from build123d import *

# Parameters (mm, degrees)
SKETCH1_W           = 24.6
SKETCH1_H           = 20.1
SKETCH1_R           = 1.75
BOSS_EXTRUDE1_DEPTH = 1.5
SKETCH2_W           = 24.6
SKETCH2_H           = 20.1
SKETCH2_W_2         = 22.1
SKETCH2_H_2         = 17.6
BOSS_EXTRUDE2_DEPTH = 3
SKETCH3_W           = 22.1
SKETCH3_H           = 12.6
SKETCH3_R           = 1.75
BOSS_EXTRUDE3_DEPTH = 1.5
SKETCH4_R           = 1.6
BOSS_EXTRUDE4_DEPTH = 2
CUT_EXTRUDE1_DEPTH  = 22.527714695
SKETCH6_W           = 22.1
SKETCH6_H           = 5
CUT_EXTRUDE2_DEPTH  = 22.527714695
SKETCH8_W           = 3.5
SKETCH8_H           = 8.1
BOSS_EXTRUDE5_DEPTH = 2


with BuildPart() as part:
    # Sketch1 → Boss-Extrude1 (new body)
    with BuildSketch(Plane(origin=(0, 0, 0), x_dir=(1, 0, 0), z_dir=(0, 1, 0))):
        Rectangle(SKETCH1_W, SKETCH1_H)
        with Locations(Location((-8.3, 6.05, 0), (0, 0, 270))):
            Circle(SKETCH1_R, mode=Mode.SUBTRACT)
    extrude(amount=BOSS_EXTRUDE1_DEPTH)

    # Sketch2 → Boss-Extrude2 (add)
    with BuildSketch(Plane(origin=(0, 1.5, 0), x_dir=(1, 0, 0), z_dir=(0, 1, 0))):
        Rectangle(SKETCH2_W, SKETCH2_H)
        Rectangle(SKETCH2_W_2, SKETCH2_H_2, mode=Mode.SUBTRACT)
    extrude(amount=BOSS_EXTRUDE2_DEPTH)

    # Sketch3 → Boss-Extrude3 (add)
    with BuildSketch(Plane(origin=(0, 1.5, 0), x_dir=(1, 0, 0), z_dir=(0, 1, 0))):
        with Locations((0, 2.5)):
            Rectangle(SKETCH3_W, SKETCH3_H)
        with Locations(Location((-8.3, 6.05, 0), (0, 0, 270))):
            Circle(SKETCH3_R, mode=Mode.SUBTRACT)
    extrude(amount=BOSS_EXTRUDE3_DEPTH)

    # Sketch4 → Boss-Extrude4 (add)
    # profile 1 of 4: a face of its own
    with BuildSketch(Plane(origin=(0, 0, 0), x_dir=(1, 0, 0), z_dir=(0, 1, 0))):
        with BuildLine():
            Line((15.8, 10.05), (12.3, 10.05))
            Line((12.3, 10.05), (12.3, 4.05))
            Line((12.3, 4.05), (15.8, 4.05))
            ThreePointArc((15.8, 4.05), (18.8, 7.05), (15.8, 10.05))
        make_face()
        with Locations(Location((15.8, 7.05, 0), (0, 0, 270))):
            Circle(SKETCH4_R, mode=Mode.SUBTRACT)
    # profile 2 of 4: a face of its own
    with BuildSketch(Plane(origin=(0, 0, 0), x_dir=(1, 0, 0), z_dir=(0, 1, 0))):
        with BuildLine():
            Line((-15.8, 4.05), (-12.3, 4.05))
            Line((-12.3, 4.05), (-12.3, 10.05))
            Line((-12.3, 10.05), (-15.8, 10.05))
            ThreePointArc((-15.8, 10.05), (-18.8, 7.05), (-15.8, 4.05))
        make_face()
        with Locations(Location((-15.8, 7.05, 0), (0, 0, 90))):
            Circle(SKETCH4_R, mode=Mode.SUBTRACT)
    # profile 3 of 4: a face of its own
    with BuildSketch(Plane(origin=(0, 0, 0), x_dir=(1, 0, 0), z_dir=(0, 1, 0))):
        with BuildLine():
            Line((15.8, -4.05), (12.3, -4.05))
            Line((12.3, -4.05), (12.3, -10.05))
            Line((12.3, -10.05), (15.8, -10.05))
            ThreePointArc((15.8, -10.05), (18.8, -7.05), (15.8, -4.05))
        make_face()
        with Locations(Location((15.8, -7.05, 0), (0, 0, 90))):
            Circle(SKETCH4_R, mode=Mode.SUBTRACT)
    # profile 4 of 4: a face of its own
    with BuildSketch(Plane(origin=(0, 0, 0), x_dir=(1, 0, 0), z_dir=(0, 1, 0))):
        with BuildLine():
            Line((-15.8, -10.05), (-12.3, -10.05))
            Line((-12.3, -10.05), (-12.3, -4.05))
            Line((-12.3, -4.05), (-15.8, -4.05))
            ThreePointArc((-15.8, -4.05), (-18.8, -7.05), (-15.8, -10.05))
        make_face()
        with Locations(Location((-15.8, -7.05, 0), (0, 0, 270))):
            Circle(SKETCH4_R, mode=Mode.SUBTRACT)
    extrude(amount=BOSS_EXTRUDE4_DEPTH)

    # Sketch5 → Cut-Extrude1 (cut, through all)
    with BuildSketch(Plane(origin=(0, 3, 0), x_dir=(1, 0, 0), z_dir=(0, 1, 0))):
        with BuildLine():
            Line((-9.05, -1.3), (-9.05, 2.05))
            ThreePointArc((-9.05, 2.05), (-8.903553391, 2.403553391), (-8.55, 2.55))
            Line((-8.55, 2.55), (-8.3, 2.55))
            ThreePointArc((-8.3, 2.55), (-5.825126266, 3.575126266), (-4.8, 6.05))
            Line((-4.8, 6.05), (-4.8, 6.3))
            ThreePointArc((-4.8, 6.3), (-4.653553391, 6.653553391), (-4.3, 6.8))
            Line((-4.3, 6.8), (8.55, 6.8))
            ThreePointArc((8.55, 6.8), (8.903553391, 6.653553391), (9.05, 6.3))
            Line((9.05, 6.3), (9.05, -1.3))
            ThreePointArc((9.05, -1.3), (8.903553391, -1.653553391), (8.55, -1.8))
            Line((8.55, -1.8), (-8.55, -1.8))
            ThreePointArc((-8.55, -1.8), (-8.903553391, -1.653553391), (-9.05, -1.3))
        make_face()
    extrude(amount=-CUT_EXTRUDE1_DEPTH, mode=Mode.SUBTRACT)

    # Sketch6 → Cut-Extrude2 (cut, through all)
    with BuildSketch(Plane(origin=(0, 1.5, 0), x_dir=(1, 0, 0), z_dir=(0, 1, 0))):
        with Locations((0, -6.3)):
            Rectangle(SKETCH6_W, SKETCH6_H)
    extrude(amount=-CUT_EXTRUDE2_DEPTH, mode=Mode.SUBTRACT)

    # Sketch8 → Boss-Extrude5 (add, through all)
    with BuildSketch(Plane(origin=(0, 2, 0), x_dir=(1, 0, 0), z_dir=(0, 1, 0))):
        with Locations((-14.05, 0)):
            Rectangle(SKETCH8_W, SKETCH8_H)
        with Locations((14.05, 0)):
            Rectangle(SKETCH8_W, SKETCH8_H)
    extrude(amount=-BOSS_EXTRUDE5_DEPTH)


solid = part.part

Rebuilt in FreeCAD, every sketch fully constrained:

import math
import FreeCAD as App
import Part
import Sketcher
from FreeCAD import Vector

doc = App.newDocument("Part")
body = doc.addObject("PartDesign::Body", "Body")

# Sketch on XZ plane
sketch1 = body.newObject("Sketcher::SketchObject", "Sketch")
sketch1.AttachmentSupport = (doc.getObject("XZ_Plane"), [""])
sketch1.MapMode = "FlatFace"
sketch1.addGeometry([
    Part.LineSegment(Vector(-12.3, -10.1, 0), Vector(-12.3, 10.1, 0)),  # 0
    Part.LineSegment(Vector(-12.3, 10.1, 0), Vector(12.3, 10.1, 0)),  # 1
    Part.LineSegment(Vector(12.3, 10.1, 0), Vector(12.3, -10.1, 0)),  # 2
    Part.LineSegment(Vector(12.3, -10.1, 0), Vector(-12.3, -10.1, 0)),  # 3
    Part.Circle(Vector(-8.3, -6, 0), Vector(0, 0, 1), 1.8),  # 4
], False)
sketch1.addConstraint([
    Sketcher.Constraint("Coincident", 0, 2, 1, 1),
    Sketcher.Constraint("Coincident", 1, 2, 2, 1),
    Sketcher.Constraint("Coincident", 2, 2, 3, 1),
    Sketcher.Constraint("Coincident", 3, 2, 0, 1),
    Sketcher.Constraint("Vertical", 0),
    Sketcher.Constraint("Horizontal", 1),
    Sketcher.Constraint("Vertical", 2),
    Sketcher.Constraint("Horizontal", 3),
    Sketcher.Constraint("Symmetric", 0, 2, 2, 2, -1, 1),
    Sketcher.Constraint("Diameter", 4, 3.5),
    Sketcher.Constraint("DistanceX", 1, 1, 1, 2, 24.6),
    Sketcher.Constraint("DistanceY", 0, 1, 0, 2, 20.1),
    Sketcher.Constraint("DistanceX", 0, 2, 4, 3, 4.0),
    Sketcher.Constraint("DistanceY", 2, 2, 4, 3, 4.0),
])
pad1 = body.newObject("PartDesign::Pad", "Pad")
pad1.Profile = sketch1
pad1.Length = 1.5
pad1.Reversed = True

# Sketch on XZ plane
sketch2 = body.newObject("Sketcher::SketchObject", "Sketch001")
sketch2.AttachmentSupport = (doc.getObject("XZ_Plane"), [""])
sketch2.MapMode = "FlatFace"
sketch2.AttachmentOffset = App.Placement(Vector(0, 0, -1.5), App.Rotation())
sketch2.addGeometry([
    Part.LineSegment(Vector(-12, -10, 0), Vector(-12, 10, 0)),  # 0
    Part.LineSegment(Vector(-12, 10, 0), Vector(12, 10, 0)),  # 1
    Part.LineSegment(Vector(12, 10, 0), Vector(12, -10, 0)),  # 2
    Part.LineSegment(Vector(12, -10, 0), Vector(-12, -10, 0)),  # 3
    Part.LineSegment(Vector(11, 9, 0), Vector(-11, 9, 0)),  # 4
    Part.LineSegment(Vector(-11, 9, 0), Vector(-11, -9, 0)),  # 5
    Part.LineSegment(Vector(-11, -9, 0), Vector(11, -9, 0)),  # 6
    Part.LineSegment(Vector(11, -9, 0), Vector(11, 9, 0)),  # 7
], False)
sketch2.addConstraint([
    Sketcher.Constraint("Coincident", 0, 2, 1, 1),
    Sketcher.Constraint("Coincident", 1, 2, 2, 1),
    Sketcher.Constraint("Coincident", 2, 2, 3, 1),
    Sketcher.Constraint("Coincident", 3, 2, 0, 1),
    Sketcher.Constraint("Coincident", 4, 2, 5, 1),
    Sketcher.Constraint("Coincident", 5, 2, 6, 1),
    Sketcher.Constraint("Coincident", 6, 2, 7, 1),
    Sketcher.Constraint("Coincident", 7, 2, 4, 1),
    Sketcher.Constraint("Vertical", 0),
    Sketcher.Constraint("Horizontal", 1),
    Sketcher.Constraint("Vertical", 2),
    Sketcher.Constraint("Horizontal", 3),
    Sketcher.Constraint("Horizontal", 4),
    Sketcher.Constraint("Vertical", 5),
    Sketcher.Constraint("Horizontal", 6),
    Sketcher.Constraint("Vertical", 7),
    Sketcher.Constraint("Symmetric", 0, 2, 2, 2, -1, 1),
    Sketcher.Constraint("Symmetric", 4, 2, 6, 2, -1, 1),
    Sketcher.Constraint("DistanceX", 1, 1, 1, 2, 24.6),
    Sketcher.Constraint("DistanceX", 4, 2, 4, 1, 22.1),
    Sketcher.Constraint("DistanceY", 0, 1, 0, 2, 20.1),
    Sketcher.Constraint("DistanceY", 5, 2, 5, 1, 17.6),
])
pad2 = body.newObject("PartDesign::Pad", "Pad001")
pad2.Profile = sketch2
pad2.Length = 3
pad2.Reversed = True

# Sketch on XZ plane
sketch3 = body.newObject("Sketcher::SketchObject", "Sketch002")
sketch3.AttachmentSupport = (doc.getObject("XZ_Plane"), [""])
sketch3.MapMode = "FlatFace"
sketch3.AttachmentOffset = App.Placement(Vector(0, 0, -1.5), App.Rotation())
sketch3.addGeometry([
    Part.LineSegment(Vector(-11.1, -8.8, 0), Vector(-11.1, 3.8, 0)),  # 0
    Part.LineSegment(Vector(-11.1, 3.8, 0), Vector(11.1, 3.8, 0)),  # 1
    Part.LineSegment(Vector(11.1, 3.8, 0), Vector(11.1, -8.8, 0)),  # 2
    Part.LineSegment(Vector(11.1, -8.8, 0), Vector(-11.1, -8.8, 0)),  # 3
    Part.Circle(Vector(-8.3, -6, 0), Vector(0, 0, 1), 1.8),  # 4
], False)
sketch3.addConstraint([
    Sketcher.Constraint("Coincident", 0, 2, 1, 1),
    Sketcher.Constraint("Coincident", 1, 2, 2, 1),
    Sketcher.Constraint("Coincident", 2, 2, 3, 1),
    Sketcher.Constraint("Coincident", 3, 2, 0, 1),
    Sketcher.Constraint("Vertical", 0),
    Sketcher.Constraint("Horizontal", 1),
    Sketcher.Constraint("Vertical", 2),
    Sketcher.Constraint("Horizontal", 3),
    Sketcher.Constraint("Diameter", 4, 3.5),
    Sketcher.Constraint("DistanceX", 1, 1, 1, 2, 22.1),
    Sketcher.Constraint("DistanceY", 0, 1, 0, 2, 12.6),
    Sketcher.Constraint("DistanceX", 4, 3, -1, 1, 8.3),
    Sketcher.Constraint("DistanceY", -1, 1, 0, 2, 3.8),
    Sketcher.Constraint("DistanceY", 4, 3, -1, 1, 6.05),
    Sketcher.Constraint("DistanceX", 0, 2, -1, 1, 11.05),
])
pad3 = body.newObject("PartDesign::Pad", "Pad002")
pad3.Profile = sketch3
pad3.Length = 1.5
pad3.Reversed = True

# Sketch on XZ plane
sketch4 = body.newObject("Sketcher::SketchObject", "Sketch003")
sketch4.AttachmentSupport = (doc.getObject("XZ_Plane"), [""])
sketch4.MapMode = "FlatFace"
sketch4.addGeometry([
    Part.LineSegment(Vector(15.8, -10.1, 0), Vector(12.3, -10.1, 0)),  # 0
    Part.LineSegment(Vector(12.3, -10.1, 0), Vector(12.3, -4, 0)),  # 1
    Part.LineSegment(Vector(12.3, -4, 0), Vector(15.8, -4, 0)),  # 2
    Part.ArcOfCircle(Part.Circle(Vector(15.8, -7, 0), Vector(0, 0, 1), 3), math.radians(-90), math.radians(90)),  # 3
    Part.Circle(Vector(15.8, -7, 0), Vector(0, 0, 1), 1.6),  # 4
    Part.LineSegment(Vector(-15.8, -4, 0), Vector(-12.3, -4, 0)),  # 5
    Part.LineSegment(Vector(-12.3, -4, 0), Vector(-12.3, -10.1, 0)),  # 6
    Part.LineSegment(Vector(-12.3, -10.1, 0), Vector(-15.8, -10.1, 0)),  # 7
    Part.ArcOfCircle(Part.Circle(Vector(-15.8, -7, 0), Vector(0, 0, 1), 3), math.radians(90), math.radians(270)),  # 8
    Part.Circle(Vector(-15.8, -7, 0), Vector(0, 0, 1), 1.6),  # 9
    Part.LineSegment(Vector(15.8, 4, 0), Vector(12.3, 4, 0)),  # 10
    Part.LineSegment(Vector(12.3, 4, 0), Vector(12.3, 10.1, 0)),  # 11
    Part.LineSegment(Vector(12.3, 10.1, 0), Vector(15.8, 10.1, 0)),  # 12
    Part.ArcOfCircle(Part.Circle(Vector(15.8, 7, 0), Vector(0, 0, 1), 3), math.radians(-90), math.radians(90)),  # 13
    Part.Circle(Vector(15.8, 7, 0), Vector(0, 0, 1), 1.6),  # 14
    Part.LineSegment(Vector(-15.8, 10.1, 0), Vector(-12.3, 10.1, 0)),  # 15
    Part.LineSegment(Vector(-12.3, 10.1, 0), Vector(-12.3, 4, 0)),  # 16
    Part.LineSegment(Vector(-12.3, 4, 0), Vector(-15.8, 4, 0)),  # 17
    Part.ArcOfCircle(Part.Circle(Vector(-15.8, 7, 0), Vector(0, 0, 1), 3), math.radians(90), math.radians(270)),  # 18
    Part.Circle(Vector(-15.8, 7, 0), Vector(0, 0, 1), 1.6),  # 19
], False)
sketch4.addConstraint([
    Sketcher.Constraint("Coincident", 0, 2, 1, 1),
    Sketcher.Constraint("Coincident", 1, 2, 2, 1),
    Sketcher.Constraint("Tangent", 2, 2, 3, 2),
    Sketcher.Constraint("Tangent", 3, 1, 0, 1),
    Sketcher.Constraint("Coincident", 5, 2, 6, 1),
    Sketcher.Constraint("Coincident", 6, 2, 7, 1),
    Sketcher.Constraint("Tangent", 7, 2, 8, 2),
    Sketcher.Constraint("Tangent", 8, 1, 5, 1),
    Sketcher.Constraint("Coincident", 10, 2, 11, 1),
    Sketcher.Constraint("Coincident", 11, 2, 12, 1),
    Sketcher.Constraint("Tangent", 12, 2, 13, 2),
    Sketcher.Constraint("Tangent", 13, 1, 10, 1),
    Sketcher.Constraint("Coincident", 15, 2, 16, 1),
    Sketcher.Constraint("Coincident", 16, 2, 17, 1),
    Sketcher.Constraint("Tangent", 17, 2, 18, 2),
    Sketcher.Constraint("Tangent", 18, 1, 15, 1),
    Sketcher.Constraint("Horizontal", 0),
    Sketcher.Constraint("Vertical", 1),
    Sketcher.Constraint("Horizontal", 2),
    Sketcher.Constraint("Horizontal", 5),
    Sketcher.Constraint("Vertical", 6),
    Sketcher.Constraint("Horizontal", 7),
    Sketcher.Constraint("Horizontal", 10),
    Sketcher.Constraint("Vertical", 11),
    Sketcher.Constraint("Horizontal", 12),
    Sketcher.Constraint("Horizontal", 15),
    Sketcher.Constraint("Vertical", 16),
    Sketcher.Constraint("Horizontal", 17),
    Sketcher.Constraint("Coincident", 4, 3, 3, 3),
    Sketcher.Constraint("Coincident", 9, 3, 8, 3),
    Sketcher.Constraint("Coincident", 14, 3, 13, 3),
    Sketcher.Constraint("Coincident", 19, 3, 18, 3),
    Sketcher.Constraint("Equal", 3, 8),
    Sketcher.Constraint("Equal", 4, 9),
    Sketcher.Constraint("Equal", 8, 13),
    Sketcher.Constraint("Equal", 9, 14),
    Sketcher.Constraint("Equal", 13, 18),
    Sketcher.Constraint("Equal", 14, 19),
    Sketcher.Constraint("Symmetric", 8, 3, 13, 3, -1, 1),
    Sketcher.Constraint("Symmetric", 3, 3, 18, 3, -1, 1),
    Sketcher.Constraint("Symmetric", 3, 3, 8, 3, -2),
    Sketcher.Constraint("Vertical", 1, 2, 10, 2),
    Sketcher.Constraint("Vertical", 6, 2, 15, 2),
    Sketcher.Constraint("Equal", 2, 5),
    Sketcher.Constraint("Radius", 3, 3.0),
    Sketcher.Constraint("Diameter", 4, 3.2),
    Sketcher.Constraint("DistanceX", 0, 2, 0, 1, 3.5),
    Sketcher.Constraint("DistanceX", -1, 1, 3, 3, 15.8),
    Sketcher.Constraint("DistanceY", 3, 3, 13, 3, 14.1),
])
pad4 = body.newObject("PartDesign::Pad", "Pad003")
pad4.Profile = sketch4
pad4.Length = 2
pad4.Reversed = True

# Sketch on XZ plane
sketch5 = body.newObject("Sketcher::SketchObject", "Sketch004")
sketch5.AttachmentSupport = (doc.getObject("XZ_Plane"), [""])
sketch5.MapMode = "FlatFace"
sketch5.AttachmentOffset = App.Placement(Vector(0, 0, -3), App.Rotation())
sketch5.addGeometry([
    Part.LineSegment(Vector(-9.05, -2.05, 0), Vector(-9.05, 1.3, 0)),  # 0
    Part.ArcOfCircle(Part.Circle(Vector(-8.55, 1.3, 0), Vector(0, 0, 1), 0.5), math.radians(90), math.radians(180)),  # 1
    Part.LineSegment(Vector(-8.55, 1.8, 0), Vector(8.55, 1.8, 0)),  # 2
    Part.ArcOfCircle(Part.Circle(Vector(8.55, 1.3, 0), Vector(0, 0, 1), 0.5), math.radians(0), math.radians(90)),  # 3
    Part.LineSegment(Vector(9.05, 1.3, 0), Vector(9.05, -6.3, 0)),  # 4
    Part.ArcOfCircle(Part.Circle(Vector(8.55, -6.3, 0), Vector(0, 0, 1), 0.5), math.radians(-90), math.radians(0)),  # 5
    Part.LineSegment(Vector(8.55, -6.8, 0), Vector(-4.3, -6.8, 0)),  # 6
    Part.ArcOfCircle(Part.Circle(Vector(-4.3, -6.3, 0), Vector(0, 0, 1), 0.5), math.radians(180), math.radians(270)),  # 7
    Part.LineSegment(Vector(-4.8, -6.3, 0), Vector(-4.8, -6.05, 0)),  # 8
    Part.ArcOfCircle(Part.Circle(Vector(-8.3, -6.05, 0), Vector(0, 0, 1), 3.5), math.radians(0), math.radians(90)),  # 9
    Part.LineSegment(Vector(-8.3, -2.55, 0), Vector(-8.55, -2.55, 0)),  # 10
    Part.ArcOfCircle(Part.Circle(Vector(-8.55, -2.05, 0), Vector(0, 0, 1), 0.5), math.radians(180), math.radians(270)),  # 11
], False)
sketch5.addConstraint([
    Sketcher.Constraint("Tangent", 0, 2, 1, 2),
    Sketcher.Constraint("Tangent", 1, 1, 2, 1),
    Sketcher.Constraint("Tangent", 2, 2, 3, 2),
    Sketcher.Constraint("Tangent", 3, 1, 4, 1),
    Sketcher.Constraint("Tangent", 4, 2, 5, 2),
    Sketcher.Constraint("Tangent", 5, 1, 6, 1),
    Sketcher.Constraint("Tangent", 6, 2, 7, 2),
    Sketcher.Constraint("Tangent", 7, 1, 8, 1),
    Sketcher.Constraint("Tangent", 8, 2, 9, 1),
    Sketcher.Constraint("Tangent", 9, 2, 10, 1),
    Sketcher.Constraint("Tangent", 10, 2, 11, 2),
    Sketcher.Constraint("Tangent", 11, 1, 0, 1),
    Sketcher.Constraint("Vertical", 0),
    Sketcher.Constraint("Horizontal", 2),
    Sketcher.Constraint("Vertical", 4),
    Sketcher.Constraint("Horizontal", 6),
    Sketcher.Constraint("Vertical", 8),
    Sketcher.Constraint("Horizontal", 10),
    Sketcher.Constraint("Equal", 1, 3),
    Sketcher.Constraint("Equal", 3, 5),
    Sketcher.Constraint("Equal", 5, 7),
    Sketcher.Constraint("Equal", 7, 11),
    Sketcher.Constraint("Equal", 10, 8),
    Sketcher.Constraint("Radius", 1, 0.5),
    Sketcher.Constraint("Radius", 9, 3.5),
    Sketcher.Constraint("DistanceX", 2, 1, 2, 2, 17.1),
    Sketcher.Constraint("DistanceY", 4, 2, 4, 1, 7.6),
    Sketcher.Constraint("DistanceX", 6, 2, 6, 1, 12.85),
    Sketcher.Constraint("DistanceY", -1, 1, 1, 3, 1.3),
    Sketcher.Constraint("DistanceX", 7, 3, -1, 1, 4.3),
])
pocket1 = body.newObject("PartDesign::Pocket", "Pocket")
pocket1.Profile = sketch5
pocket1.Type = "ThroughAll"
pocket1.Reversed = True

# Sketch on XZ plane
sketch6 = body.newObject("Sketcher::SketchObject", "Sketch005")
sketch6.AttachmentSupport = (doc.getObject("XZ_Plane"), [""])
sketch6.MapMode = "FlatFace"
sketch6.AttachmentOffset = App.Placement(Vector(0, 0, -1.5), App.Rotation())
sketch6.addGeometry([
    Part.LineSegment(Vector(-11, 4, 0), Vector(-11, 9, 0)),
    Part.LineSegment(Vector(-11, 9, 0), Vector(11, 9, 0)),
    Part.LineSegment(Vector(11, 9, 0), Vector(11, 4, 0)),
    Part.LineSegment(Vector(11, 4, 0), Vector(-11, 4, 0)),
], False)
sketch6.addConstraint([
    Sketcher.Constraint("Coincident", 0, 2, 1, 1),
    Sketcher.Constraint("Coincident", 1, 2, 2, 1),
    Sketcher.Constraint("Coincident", 2, 2, 3, 1),
    Sketcher.Constraint("Coincident", 3, 2, 0, 1),
    Sketcher.Constraint("Vertical", 0),
    Sketcher.Constraint("Horizontal", 1),
    Sketcher.Constraint("Vertical", 2),
    Sketcher.Constraint("Horizontal", 3),
    Sketcher.Constraint("DistanceY", 0, 1, 0, 2, 5.0),
    Sketcher.Constraint("DistanceX", 1, 1, 1, 2, 22.1),
    Sketcher.Constraint("DistanceY", -1, 1, 0, 2, 8.8),
    Sketcher.Constraint("DistanceX", 0, 2, -1, 1, 11.05),
])
pocket2 = body.newObject("PartDesign::Pocket", "Pocket001")
pocket2.Profile = sketch6
pocket2.Type = "ThroughAll"
pocket2.Reversed = True

# Sketch on XZ plane
sketch7 = body.newObject("Sketcher::SketchObject", "Sketch006")
sketch7.AttachmentSupport = (doc.getObject("XZ_Plane"), [""])
sketch7.MapMode = "FlatFace"
sketch7.AttachmentOffset = App.Placement(Vector(0, 0, -2), App.Rotation())
sketch7.addGeometry([
    Part.LineSegment(Vector(-15.8, -4, 0), Vector(-15.8, 4, 0)),  # 0
    Part.LineSegment(Vector(-15.8, 4, 0), Vector(-12.3, 4, 0)),  # 1
    Part.LineSegment(Vector(-12.3, 4, 0), Vector(-12.3, -4, 0)),  # 2
    Part.LineSegment(Vector(-12.3, -4, 0), Vector(-15.8, -4, 0)),  # 3
    Part.LineSegment(Vector(12.3, -4, 0), Vector(12.3, 4, 0)),  # 4
    Part.LineSegment(Vector(12.3, 4, 0), Vector(15.8, 4, 0)),  # 5
    Part.LineSegment(Vector(15.8, 4, 0), Vector(15.8, -4, 0)),  # 6
    Part.LineSegment(Vector(15.8, -4, 0), Vector(12.3, -4, 0)),  # 7
], False)
sketch7.addConstraint([
    Sketcher.Constraint("Coincident", 0, 2, 1, 1),
    Sketcher.Constraint("Coincident", 1, 2, 2, 1),
    Sketcher.Constraint("Coincident", 2, 2, 3, 1),
    Sketcher.Constraint("Coincident", 3, 2, 0, 1),
    Sketcher.Constraint("Coincident", 4, 2, 5, 1),
    Sketcher.Constraint("Coincident", 5, 2, 6, 1),
    Sketcher.Constraint("Coincident", 6, 2, 7, 1),
    Sketcher.Constraint("Coincident", 7, 2, 4, 1),
    Sketcher.Constraint("Vertical", 0),
    Sketcher.Constraint("Horizontal", 1),
    Sketcher.Constraint("Vertical", 2),
    Sketcher.Constraint("Horizontal", 3),
    Sketcher.Constraint("Vertical", 4),
    Sketcher.Constraint("Horizontal", 5),
    Sketcher.Constraint("Vertical", 6),
    Sketcher.Constraint("Horizontal", 7),
    Sketcher.Constraint("Symmetric", 2, 2, 4, 2, -1, 1),
    Sketcher.Constraint("Symmetric", 0, 2, 6, 2, -1, 1),
    Sketcher.Constraint("Horizontal", 1, 2, 4, 2),
    Sketcher.Constraint("DistanceX", 1, 1, 1, 2, 3.5),
    Sketcher.Constraint("DistanceY", 0, 1, 0, 2, 8.1),
    Sketcher.Constraint("DistanceX", 0, 2, -1, 1, 15.8),
])
pad5 = body.newObject("PartDesign::Pad", "Pad004")
pad5.Profile = sketch7
pad5.Length = 2

doc.recompute()
